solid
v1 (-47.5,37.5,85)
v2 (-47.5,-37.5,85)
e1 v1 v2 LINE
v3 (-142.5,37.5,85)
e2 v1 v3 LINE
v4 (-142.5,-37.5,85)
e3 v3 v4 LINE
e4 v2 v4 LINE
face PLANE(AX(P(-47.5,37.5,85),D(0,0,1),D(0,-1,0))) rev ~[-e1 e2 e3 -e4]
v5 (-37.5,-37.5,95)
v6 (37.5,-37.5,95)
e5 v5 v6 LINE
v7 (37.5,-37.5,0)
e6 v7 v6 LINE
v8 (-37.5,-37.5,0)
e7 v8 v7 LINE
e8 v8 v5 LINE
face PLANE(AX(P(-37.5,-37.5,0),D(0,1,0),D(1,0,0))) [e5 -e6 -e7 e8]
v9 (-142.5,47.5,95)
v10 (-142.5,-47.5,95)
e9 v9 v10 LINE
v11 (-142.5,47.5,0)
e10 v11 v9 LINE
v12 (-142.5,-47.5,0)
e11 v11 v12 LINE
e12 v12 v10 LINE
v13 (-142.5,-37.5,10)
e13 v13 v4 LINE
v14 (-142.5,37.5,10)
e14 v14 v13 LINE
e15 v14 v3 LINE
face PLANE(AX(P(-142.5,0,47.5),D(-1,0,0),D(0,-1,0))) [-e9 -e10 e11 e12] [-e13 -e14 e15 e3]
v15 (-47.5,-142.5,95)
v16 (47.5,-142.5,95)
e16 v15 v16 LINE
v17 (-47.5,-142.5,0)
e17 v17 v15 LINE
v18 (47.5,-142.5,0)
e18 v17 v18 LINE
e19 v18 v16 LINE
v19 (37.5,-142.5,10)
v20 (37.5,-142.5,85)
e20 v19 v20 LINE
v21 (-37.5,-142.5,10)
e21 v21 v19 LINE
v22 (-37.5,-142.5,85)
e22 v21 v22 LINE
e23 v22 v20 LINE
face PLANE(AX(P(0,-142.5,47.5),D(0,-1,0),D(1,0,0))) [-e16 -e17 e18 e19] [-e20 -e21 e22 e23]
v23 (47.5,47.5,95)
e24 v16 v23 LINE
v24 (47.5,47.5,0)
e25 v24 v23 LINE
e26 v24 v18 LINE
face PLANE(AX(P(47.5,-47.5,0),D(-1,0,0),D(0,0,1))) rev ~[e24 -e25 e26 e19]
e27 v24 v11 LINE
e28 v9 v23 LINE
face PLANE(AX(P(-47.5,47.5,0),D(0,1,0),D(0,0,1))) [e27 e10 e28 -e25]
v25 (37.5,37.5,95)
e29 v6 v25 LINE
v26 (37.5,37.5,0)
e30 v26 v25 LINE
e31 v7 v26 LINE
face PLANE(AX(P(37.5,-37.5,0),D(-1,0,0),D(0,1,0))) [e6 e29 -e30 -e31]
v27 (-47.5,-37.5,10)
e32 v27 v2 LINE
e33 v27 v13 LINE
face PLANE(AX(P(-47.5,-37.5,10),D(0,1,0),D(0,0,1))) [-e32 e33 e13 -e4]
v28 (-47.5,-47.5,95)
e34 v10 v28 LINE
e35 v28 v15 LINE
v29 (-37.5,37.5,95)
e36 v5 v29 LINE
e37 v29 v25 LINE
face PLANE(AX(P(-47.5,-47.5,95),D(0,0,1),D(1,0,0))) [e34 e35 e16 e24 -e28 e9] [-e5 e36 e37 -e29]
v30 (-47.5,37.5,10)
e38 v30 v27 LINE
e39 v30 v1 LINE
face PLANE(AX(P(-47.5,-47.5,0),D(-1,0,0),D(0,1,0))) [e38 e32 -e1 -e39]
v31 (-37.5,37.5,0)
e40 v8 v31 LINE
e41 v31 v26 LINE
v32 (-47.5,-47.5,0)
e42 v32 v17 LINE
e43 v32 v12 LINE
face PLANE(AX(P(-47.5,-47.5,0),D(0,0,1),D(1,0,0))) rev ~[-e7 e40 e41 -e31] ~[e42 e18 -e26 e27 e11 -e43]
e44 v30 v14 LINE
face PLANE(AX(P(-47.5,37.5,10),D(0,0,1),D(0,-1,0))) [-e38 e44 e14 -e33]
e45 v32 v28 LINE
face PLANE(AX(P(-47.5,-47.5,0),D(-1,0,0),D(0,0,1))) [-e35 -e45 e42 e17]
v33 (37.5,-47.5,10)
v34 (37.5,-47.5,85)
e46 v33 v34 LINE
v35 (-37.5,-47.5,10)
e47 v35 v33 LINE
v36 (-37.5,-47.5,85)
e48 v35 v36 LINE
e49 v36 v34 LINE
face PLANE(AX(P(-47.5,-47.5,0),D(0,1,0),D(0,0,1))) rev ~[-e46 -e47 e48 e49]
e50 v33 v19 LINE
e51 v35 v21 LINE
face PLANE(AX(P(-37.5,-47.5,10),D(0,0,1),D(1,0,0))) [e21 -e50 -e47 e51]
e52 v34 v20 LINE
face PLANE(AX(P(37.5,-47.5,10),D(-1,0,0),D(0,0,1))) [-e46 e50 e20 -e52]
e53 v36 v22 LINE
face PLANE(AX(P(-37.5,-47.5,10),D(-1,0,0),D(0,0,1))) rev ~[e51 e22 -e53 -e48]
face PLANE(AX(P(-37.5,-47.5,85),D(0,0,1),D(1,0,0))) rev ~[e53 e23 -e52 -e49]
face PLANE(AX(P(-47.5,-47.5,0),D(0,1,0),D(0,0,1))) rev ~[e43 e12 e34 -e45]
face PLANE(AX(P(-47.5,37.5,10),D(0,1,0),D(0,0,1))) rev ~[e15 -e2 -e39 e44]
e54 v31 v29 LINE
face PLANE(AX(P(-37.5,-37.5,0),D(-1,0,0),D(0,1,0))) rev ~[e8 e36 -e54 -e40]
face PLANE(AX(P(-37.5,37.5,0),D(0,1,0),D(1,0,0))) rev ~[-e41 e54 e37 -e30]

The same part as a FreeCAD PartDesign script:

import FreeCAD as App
import Part
import Sketcher
from FreeCAD import Vector


def add_polygon(sketch, points):
    """Adds a closed chain of lines whose ends are joined by coincident constraints."""
    first, n = sketch.GeometryCount, len(points)
    for a, b in zip(points, points[1:] + points[:1]):
        sketch.addGeometry(Part.LineSegment(App.Vector(*a, 0), App.Vector(*b, 0)), False)
    for i in range(n):
        sketch.addConstraint(Sketcher.Constraint("Coincident", first + i, 2, first + (i + 1) % n, 1))

doc = App.newDocument("Part")
body = doc.addObject("PartDesign::Body", "Body")

sketch1 = body.newObject("Sketcher::SketchObject", "Sketch")
sketch1.AttachmentSupport = (doc.getObject("XY_Plane"), [""])
sketch1.MapMode = "FlatFace"
add_polygon(sketch1, [(-48, 48), (-48, -48), (48, -48), (48, 48)])
add_polygon(sketch1, [(38, -38), (-38, -38), (-38, 38), (38, 38)])
sketch1.addConstraint(Sketcher.Constraint("Vertical", 0))
sketch1.addConstraint(Sketcher.Constraint("Horizontal", 1))
sketch1.addConstraint(Sketcher.Constraint("Vertical", 2))
sketch1.addConstraint(Sketcher.Constraint("Horizontal", 3))
sketch1.addConstraint(Sketcher.Constraint("Horizontal", 4))
sketch1.addConstraint(Sketcher.Constraint("Vertical", 5))
sketch1.addConstraint(Sketcher.Constraint("Horizontal", 6))
sketch1.addConstraint(Sketcher.Constraint("Vertical", 7))
sketch1.addConstraint(Sketcher.Constraint("Symmetric", 0, 2, 2, 2, -1, 1))
sketch1.addConstraint(Sketcher.Constraint("Symmetric", 4, 2, 6, 2, -1, 1))
sketch1.addConstraint(Sketcher.Constraint("Equal", 3, 0))
sketch1.addConstraint(Sketcher.Constraint("Equal", 6, 5))
sketch1.addConstraint(Sketcher.Constraint("DistanceX", 1, 1, 1, 2, 95.0))
sketch1.addConstraint(Sketcher.Constraint("DistanceX", 4, 2, 4, 1, 75.0))
pad1 = body.newObject("PartDesign::Pad", "Pad")
pad1.Profile = sketch1
pad1.Length = 95

sketch2 = body.newObject("Sketcher::SketchObject", "Sketch001")
sketch2.AttachmentSupport = (doc.getObject("YZ_Plane"), [""])
sketch2.MapMode = "FlatFace"
sketch2.AttachmentOffset = App.Placement(Vector(0, 0, -47.5), App.Rotation())
add_polygon(sketch2, [(48, 95), (48, 0), (-48, 0), (-48, 95)])
add_polygon(sketch2, [(-38, 10), (38, 10), (38, 85), (-38, 85)])
sketch2.addConstraint(Sketcher.Constraint("Vertical", 0))
sketch2.addConstraint(Sketcher.Constraint("Horizontal", 1))
sketch2.addConstraint(Sketcher.Constraint("Vertical", 2))
sketch2.addConstraint(Sketcher.Constraint("Horizontal", 3))
sketch2.addConstraint(Sketcher.Constraint("Horizontal", 4))
sketch2.addConstraint(Sketcher.Constraint("Vertical", 5))
sketch2.addConstraint(Sketcher.Constraint("Horizontal", 6))
sketch2.addConstraint(Sketcher.Constraint("Vertical", 7))
sketch2.addConstraint(Sketcher.Constraint("Symmetric", 0, 2, 1, 2, -1, 1))
sketch2.addConstraint(Sketcher.Constraint("Equal", 3, 0))
sketch2.addConstraint(Sketcher.Constraint("Equal", 6, 5))
sketch2.addConstraint(Sketcher.Constraint("DistanceX", 1, 2, 1, 1, 95.0))
sketch2.addConstraint(Sketcher.Constraint("DistanceX", 4, 1, 4, 2, 75.0))
sketch2.addConstraint(Sketcher.Constraint("DistanceY", -1, 1, 4, 2, 10.0))
sketch2.addConstraint(Sketcher.Constraint("DistanceX", 4, 2, 0, 2, 10.0))
pad2 = body.newObject("PartDesign::Pad", "Pad001")
pad2.Profile = sketch2
pad2.Length = 95
pad2.Reversed = True

sketch3 = body.newObject("Sketcher::SketchObject", "Sketch002")
sketch3.AttachmentSupport = (doc.getObject("XZ_Plane"), [""])
sketch3.MapMode = "FlatFace"
sketch3.AttachmentOffset = App.Placement(Vector(0, 0, 47.5), App.Rotation())
add_polygon(sketch3, [(-48, 95), (-48, 0), (48, 0), (48, 95)])
add_polygon(sketch3, [(38, 10), (-38, 10), (-38, 85), (38, 85)])
sketch3.addConstraint(Sketcher.Constraint("Vertical", 0))
sketch3.addConstraint(Sketcher.Constraint("Horizontal", 1))
sketch3.addConstraint(Sketcher.Constraint("Vertical", 2))
sketch3.addConstraint(Sketcher.Constraint("Horizontal", 3))
sketch3.addConstraint(Sketcher.Constraint("Horizontal", 4))
sketch3.addConstraint(Sketcher.Constraint("Vertical", 5))
sketch3.addConstraint(Sketcher.Constraint("Horizontal", 6))
sketch3.addConstraint(Sketcher.Constraint("Vertical", 7))
sketch3.addConstraint(Sketcher.Constraint("Symmetric", 0, 2, 1, 2, -1, 1))
sketch3.addConstraint(Sketcher.Constraint("Equal", 3, 0))
sketch3.addConstraint(Sketcher.Constraint("Equal", 6, 5))
sketch3.addConstraint(Sketcher.Constraint("DistanceX", 1, 1, 1, 2, 95.0))
sketch3.addConstraint(Sketcher.Constraint("DistanceX", 4, 2, 4, 1, 75.0))
sketch3.addConstraint(Sketcher.Constraint("DistanceY", -1, 1, 4, 2, 10.0))
sketch3.addConstraint(Sketcher.Constraint("DistanceX", 0, 2, 4, 2, 10.0))
pad3 = body.newObject("PartDesign::Pad", "Pad002")
pad3.Profile = sketch3
pad3.Length = 95

doc.recompute()
